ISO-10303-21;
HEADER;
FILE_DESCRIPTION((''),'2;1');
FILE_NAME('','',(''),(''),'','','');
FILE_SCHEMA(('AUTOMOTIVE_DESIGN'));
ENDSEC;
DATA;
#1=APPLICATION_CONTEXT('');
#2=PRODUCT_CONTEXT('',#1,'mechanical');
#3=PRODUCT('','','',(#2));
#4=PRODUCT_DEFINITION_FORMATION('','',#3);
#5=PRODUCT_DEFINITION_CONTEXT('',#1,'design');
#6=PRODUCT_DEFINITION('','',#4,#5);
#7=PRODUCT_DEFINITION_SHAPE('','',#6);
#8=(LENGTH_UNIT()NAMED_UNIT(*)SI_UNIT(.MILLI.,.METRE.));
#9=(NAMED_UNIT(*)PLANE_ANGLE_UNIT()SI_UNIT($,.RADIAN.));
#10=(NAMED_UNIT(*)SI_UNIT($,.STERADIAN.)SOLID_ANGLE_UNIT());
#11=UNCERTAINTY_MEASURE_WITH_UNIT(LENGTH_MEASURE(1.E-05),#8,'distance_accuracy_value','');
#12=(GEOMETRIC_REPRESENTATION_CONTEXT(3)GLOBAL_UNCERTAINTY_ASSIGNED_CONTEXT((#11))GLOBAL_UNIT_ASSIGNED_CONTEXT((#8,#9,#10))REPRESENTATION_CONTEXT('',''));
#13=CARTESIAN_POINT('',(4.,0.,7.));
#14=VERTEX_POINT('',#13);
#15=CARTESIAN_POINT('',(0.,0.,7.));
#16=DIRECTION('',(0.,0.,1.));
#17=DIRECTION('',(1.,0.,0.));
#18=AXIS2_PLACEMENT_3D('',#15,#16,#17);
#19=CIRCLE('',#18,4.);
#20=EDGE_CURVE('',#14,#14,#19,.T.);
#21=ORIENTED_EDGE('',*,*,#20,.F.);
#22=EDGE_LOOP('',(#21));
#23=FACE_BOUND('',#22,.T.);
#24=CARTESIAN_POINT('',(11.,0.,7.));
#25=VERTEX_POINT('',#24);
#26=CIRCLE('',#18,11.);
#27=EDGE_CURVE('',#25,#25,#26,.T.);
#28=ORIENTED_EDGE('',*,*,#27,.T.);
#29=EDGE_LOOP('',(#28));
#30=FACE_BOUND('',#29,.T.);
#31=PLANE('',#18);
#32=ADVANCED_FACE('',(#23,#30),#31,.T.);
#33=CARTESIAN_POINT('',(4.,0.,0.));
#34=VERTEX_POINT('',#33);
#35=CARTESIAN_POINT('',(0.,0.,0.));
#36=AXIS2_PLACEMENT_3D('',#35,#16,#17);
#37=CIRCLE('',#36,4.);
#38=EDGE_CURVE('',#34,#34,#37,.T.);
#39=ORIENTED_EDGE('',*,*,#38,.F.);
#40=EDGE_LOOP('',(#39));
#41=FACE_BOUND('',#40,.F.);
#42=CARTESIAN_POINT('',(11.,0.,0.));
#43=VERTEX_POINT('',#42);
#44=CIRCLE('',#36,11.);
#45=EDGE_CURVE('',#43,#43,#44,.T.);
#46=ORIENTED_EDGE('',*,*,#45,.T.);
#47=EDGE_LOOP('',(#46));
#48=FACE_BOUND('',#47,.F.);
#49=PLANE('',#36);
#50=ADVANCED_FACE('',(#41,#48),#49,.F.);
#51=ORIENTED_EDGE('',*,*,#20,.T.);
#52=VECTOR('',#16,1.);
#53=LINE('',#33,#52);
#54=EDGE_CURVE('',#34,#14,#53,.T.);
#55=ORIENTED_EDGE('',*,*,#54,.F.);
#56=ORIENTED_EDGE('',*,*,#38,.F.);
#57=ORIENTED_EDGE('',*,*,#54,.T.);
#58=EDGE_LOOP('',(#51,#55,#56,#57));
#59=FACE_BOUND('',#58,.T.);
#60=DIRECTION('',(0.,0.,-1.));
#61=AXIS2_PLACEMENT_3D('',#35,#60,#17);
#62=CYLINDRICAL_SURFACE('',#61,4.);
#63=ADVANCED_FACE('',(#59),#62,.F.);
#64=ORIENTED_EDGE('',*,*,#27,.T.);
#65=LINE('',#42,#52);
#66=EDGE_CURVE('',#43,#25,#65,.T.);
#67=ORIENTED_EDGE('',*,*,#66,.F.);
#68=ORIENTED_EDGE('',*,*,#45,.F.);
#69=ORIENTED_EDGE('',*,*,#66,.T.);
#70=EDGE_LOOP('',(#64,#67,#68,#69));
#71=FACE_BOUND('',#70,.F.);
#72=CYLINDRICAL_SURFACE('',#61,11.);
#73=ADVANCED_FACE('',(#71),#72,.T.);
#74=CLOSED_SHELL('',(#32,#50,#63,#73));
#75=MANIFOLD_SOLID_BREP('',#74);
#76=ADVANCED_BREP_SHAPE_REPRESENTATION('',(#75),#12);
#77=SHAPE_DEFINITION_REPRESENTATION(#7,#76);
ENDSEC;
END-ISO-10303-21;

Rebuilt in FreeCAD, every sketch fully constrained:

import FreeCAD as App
import Part
import Sketcher
Q = App.Units.Quantity

doc = App.newDocument("Part")
body = doc.addObject("PartDesign::Body", "Body")

sketch1 = doc.addObject("Sketcher::SketchObject", "Sketch")
body.addObject(sketch1)
sketch1.AttachmentSupport = (doc.XY_Plane, [""])
sketch1.MapMode = "FlatFace"
sketch1.addGeometry([
    Part.Circle(App.Vector(0, 0, 0), App.Vector(0, 0, 1), 11),
    Part.Circle(App.Vector(0, 0, 0), App.Vector(0, 0, 1), 4),
], False)
sketch1.addConstraint([
    Sketcher.Constraint("Coincident", 0, 3, -1, 1),
    Sketcher.Constraint("Coincident", 1, 3, -1, 1),
    Sketcher.Constraint("Diameter", 0, Q("22 mm")),
    Sketcher.Constraint("Diameter", 1, Q("8 mm")),
])
pad1 = doc.addObject("PartDesign::Pad", "Pad")
body.addObject(pad1)
pad1.Profile = sketch1
pad1.Length = 7

doc.recompute()
